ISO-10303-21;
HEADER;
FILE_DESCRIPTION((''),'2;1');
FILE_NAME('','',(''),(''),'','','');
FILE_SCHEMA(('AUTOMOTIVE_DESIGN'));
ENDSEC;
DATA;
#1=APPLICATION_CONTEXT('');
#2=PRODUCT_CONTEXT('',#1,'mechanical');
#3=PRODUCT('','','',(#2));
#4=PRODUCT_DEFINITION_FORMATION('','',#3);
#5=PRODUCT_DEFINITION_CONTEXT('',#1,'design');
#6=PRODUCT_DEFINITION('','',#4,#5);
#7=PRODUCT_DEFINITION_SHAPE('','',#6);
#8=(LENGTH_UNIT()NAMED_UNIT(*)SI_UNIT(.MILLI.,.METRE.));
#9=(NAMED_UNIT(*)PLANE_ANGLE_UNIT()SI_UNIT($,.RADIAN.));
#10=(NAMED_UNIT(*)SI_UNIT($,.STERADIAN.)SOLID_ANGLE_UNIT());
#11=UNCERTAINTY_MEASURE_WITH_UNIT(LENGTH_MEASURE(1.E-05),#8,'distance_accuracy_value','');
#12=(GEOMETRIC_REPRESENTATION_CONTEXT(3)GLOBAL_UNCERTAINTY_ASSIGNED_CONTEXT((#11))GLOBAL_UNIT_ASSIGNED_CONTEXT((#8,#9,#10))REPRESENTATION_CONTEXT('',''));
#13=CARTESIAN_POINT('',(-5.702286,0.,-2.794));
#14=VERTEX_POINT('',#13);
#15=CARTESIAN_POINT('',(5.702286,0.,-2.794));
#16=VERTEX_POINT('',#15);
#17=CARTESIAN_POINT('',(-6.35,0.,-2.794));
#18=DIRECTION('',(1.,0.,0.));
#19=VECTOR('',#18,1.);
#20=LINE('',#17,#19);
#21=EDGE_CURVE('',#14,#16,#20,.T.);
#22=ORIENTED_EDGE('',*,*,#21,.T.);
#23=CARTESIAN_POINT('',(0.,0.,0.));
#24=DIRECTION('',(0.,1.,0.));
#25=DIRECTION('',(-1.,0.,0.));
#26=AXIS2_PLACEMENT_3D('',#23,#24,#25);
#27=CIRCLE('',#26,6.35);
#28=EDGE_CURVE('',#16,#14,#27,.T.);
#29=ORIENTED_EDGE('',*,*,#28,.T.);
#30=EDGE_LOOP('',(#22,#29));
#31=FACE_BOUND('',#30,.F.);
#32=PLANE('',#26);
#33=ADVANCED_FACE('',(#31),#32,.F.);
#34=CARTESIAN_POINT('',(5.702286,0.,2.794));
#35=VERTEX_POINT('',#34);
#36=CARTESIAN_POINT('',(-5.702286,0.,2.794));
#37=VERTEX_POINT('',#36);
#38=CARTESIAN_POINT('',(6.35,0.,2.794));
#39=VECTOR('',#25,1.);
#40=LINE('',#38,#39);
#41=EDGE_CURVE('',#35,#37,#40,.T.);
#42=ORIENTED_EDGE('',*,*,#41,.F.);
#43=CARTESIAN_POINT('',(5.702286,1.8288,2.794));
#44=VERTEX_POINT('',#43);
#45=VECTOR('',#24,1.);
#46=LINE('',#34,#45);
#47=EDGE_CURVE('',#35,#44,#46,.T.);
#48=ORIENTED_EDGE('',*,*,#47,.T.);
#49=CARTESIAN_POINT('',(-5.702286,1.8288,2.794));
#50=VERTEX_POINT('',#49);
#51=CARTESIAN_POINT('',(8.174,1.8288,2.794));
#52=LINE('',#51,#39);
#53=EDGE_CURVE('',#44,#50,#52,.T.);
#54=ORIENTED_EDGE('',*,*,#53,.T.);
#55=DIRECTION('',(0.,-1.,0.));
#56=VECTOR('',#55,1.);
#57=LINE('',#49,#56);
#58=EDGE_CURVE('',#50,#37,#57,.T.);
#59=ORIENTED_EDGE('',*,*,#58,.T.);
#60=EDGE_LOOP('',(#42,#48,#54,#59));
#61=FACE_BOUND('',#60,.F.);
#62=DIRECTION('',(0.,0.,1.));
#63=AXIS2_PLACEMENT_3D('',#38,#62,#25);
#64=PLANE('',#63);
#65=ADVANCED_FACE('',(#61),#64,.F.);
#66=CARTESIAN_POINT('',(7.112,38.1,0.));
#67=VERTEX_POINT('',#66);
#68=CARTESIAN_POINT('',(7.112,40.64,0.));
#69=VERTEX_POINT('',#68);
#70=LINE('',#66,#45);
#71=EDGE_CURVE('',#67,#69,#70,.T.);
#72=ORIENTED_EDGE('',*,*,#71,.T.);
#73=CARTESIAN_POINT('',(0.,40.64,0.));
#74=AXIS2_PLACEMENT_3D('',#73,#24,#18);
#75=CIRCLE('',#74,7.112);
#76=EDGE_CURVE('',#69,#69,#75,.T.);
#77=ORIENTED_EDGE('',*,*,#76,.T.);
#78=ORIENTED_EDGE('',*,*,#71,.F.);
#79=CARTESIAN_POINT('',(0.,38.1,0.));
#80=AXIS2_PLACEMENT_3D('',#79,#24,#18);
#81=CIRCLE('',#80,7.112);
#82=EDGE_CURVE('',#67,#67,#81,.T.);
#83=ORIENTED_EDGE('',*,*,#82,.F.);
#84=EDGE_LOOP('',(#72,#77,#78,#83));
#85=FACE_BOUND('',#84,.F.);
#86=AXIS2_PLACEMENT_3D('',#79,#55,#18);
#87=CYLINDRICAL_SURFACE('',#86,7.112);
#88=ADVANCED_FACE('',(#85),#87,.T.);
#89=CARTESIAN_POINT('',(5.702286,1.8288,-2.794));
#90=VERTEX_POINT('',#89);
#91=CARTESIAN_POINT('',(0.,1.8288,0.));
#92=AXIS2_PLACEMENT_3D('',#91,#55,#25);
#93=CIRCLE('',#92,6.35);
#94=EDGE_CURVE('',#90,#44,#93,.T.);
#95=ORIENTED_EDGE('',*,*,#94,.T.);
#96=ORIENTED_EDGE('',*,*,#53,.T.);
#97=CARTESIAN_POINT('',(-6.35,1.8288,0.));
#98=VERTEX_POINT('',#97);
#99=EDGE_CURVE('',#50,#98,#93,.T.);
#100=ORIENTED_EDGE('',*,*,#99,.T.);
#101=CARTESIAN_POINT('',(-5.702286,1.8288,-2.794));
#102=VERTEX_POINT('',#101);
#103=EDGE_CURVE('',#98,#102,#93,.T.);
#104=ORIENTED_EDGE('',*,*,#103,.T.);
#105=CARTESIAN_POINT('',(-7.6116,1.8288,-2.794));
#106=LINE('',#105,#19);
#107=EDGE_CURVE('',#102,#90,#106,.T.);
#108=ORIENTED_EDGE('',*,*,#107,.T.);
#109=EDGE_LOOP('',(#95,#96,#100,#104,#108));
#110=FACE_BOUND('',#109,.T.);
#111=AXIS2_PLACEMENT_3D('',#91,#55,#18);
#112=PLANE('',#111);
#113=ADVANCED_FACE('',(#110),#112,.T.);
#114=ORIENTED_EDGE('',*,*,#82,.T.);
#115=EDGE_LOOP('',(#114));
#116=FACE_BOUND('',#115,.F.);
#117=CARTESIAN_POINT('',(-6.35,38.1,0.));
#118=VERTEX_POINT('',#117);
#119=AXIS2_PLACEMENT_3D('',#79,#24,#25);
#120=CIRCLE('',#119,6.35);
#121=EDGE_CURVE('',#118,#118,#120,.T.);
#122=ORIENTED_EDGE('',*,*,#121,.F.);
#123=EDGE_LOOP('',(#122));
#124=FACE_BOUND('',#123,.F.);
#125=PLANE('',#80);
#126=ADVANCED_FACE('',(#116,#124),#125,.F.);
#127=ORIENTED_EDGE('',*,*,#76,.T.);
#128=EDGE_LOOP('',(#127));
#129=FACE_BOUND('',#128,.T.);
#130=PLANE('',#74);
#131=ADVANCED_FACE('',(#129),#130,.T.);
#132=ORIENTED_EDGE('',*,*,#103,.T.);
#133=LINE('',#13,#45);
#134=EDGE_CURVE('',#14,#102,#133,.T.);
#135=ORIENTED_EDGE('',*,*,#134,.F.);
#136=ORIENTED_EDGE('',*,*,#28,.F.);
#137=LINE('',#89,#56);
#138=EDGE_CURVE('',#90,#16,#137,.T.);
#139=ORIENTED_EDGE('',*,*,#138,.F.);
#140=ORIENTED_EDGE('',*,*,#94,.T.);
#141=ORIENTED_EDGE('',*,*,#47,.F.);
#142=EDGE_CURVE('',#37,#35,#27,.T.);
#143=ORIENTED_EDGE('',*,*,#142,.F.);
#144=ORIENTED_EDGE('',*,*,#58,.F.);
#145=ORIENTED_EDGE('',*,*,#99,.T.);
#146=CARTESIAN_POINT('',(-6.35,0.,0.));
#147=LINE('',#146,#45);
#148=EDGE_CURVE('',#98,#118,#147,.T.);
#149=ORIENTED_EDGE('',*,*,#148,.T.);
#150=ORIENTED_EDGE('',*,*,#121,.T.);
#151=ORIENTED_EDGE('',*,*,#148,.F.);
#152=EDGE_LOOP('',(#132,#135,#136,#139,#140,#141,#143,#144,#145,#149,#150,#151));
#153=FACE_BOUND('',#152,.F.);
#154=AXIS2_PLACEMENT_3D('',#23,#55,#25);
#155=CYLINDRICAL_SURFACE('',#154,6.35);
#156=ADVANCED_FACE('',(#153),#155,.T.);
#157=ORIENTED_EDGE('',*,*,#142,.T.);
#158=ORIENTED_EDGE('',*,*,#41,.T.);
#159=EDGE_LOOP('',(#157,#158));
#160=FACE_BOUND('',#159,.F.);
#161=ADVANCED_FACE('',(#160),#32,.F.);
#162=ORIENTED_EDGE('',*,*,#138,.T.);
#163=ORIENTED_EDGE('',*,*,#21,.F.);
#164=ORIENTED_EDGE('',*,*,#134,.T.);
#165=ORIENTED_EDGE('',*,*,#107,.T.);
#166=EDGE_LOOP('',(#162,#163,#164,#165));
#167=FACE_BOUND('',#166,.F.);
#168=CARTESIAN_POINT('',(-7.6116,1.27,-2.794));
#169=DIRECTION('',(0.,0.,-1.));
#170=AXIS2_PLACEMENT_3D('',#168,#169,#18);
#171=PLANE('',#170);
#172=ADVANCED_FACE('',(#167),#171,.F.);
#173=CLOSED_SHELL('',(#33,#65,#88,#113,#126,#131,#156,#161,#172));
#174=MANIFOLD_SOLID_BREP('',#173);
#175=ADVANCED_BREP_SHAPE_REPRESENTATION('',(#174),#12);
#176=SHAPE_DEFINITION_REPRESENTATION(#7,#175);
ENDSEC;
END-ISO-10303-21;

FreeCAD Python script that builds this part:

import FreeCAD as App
import Part
import Sketcher
from FreeCAD import Vector
Q = App.Units.Quantity


def add_polygon(sketch, points):
    """Adds a closed chain of lines whose ends are joined by coincident constraints."""
    first, n = sketch.GeometryCount, len(points)
    for a, b in zip(points, points[1:] + points[:1]):
        sketch.addGeometry(Part.LineSegment(App.Vector(*a, 0), App.Vector(*b, 0)), False)
    for i in range(n):
        sketch.addConstraint(Sketcher.Constraint("Coincident", first + i, 2, first + (i + 1) % n, 1))

doc = App.newDocument("Part")
body = doc.addObject("PartDesign::Body", "Body")

# Sketch on XZ plane
sketch1 = doc.addObject("Sketcher::SketchObject", "Sketch")
body.addObject(sketch1)
sketch1.AttachmentSupport = (doc.XZ_Plane, [""])
sketch1.MapMode = "FlatFace"
sketch1.addGeometry(Part.Circle(Vector(0, 0, 0), Vector(0, 0, 1), 6), False)
sketch1.addConstraint([
    Sketcher.Constraint("Coincident", 0, 3, -1, 1),
    Sketcher.Constraint("Diameter", 0, Q("0.5 in")),
])
pad1 = doc.addObject("PartDesign::Pad", "Pad")
body.addObject(pad1)
pad1.Profile = sketch1
pad1.Length = Q("1.5 in")
pad1.Reversed = True

# Sketch on XZ plane
sketch2 = doc.addObject("Sketcher::SketchObject", "Sketch001")
body.addObject(sketch2)
sketch2.AttachmentSupport = (doc.XZ_Plane, [""])
sketch2.MapMode = "FlatFace"
sketch2.AttachmentOffset = App.Placement(Vector(0, 0, -1.5 * 25.4), App.Rotation())
sketch2.addGeometry(Part.Circle(Vector(0, 0, 0), Vector(0, 0, 1), 7), False)
sketch2.addConstraint([
    Sketcher.Constraint("Coincident", 0, 3, -1, 1),
    Sketcher.Constraint("Diameter", 0, Q("0.56 in")),
])
pad2 = doc.addObject("PartDesign::Pad", "Pad001")
body.addObject(pad2)
pad2.Profile = sketch2
pad2.Length = Q("0.1 in")
pad2.Reversed = True

# Sketch on XZ plane
sketch3 = doc.addObject("Sketcher::SketchObject", "Sketch002")
body.addObject(sketch3)
sketch3.AttachmentSupport = (doc.XZ_Plane, [""])
sketch3.MapMode = "FlatFace"
add_polygon(sketch3, [(-6, 3), (-6, -3), (6, -3), (6, 3)])  # lines 0-3
sketch3.addConstraint([
    Sketcher.Constraint("Vertical", 0),
    Sketcher.Constraint("Horizontal", 1),
    Sketcher.Constraint("Vertical", 2),
    Sketcher.Constraint("Horizontal", 3),
    Sketcher.Constraint("Symmetric", 0, 2, 2, 2, -1, 1),
    Sketcher.Constraint("DistanceY", 0, 2, 0, 1, Q("0.22 in")),
    Sketcher.Constraint("DistanceX", 1, 1, 1, 2, Q("0.5 in")),
])
pocket1 = doc.addObject("PartDesign::Pocket", "Pocket")
body.addObject(pocket1)
pocket1.Profile = sketch3
pocket1.Length = Q("0.05 in")

# Sketch on XZ plane
sketch4 = doc.addObject("Sketcher::SketchObject", "Sketch003")
body.addObject(sketch4)
sketch4.AttachmentSupport = (doc.XZ_Plane, [""])
sketch4.MapMode = "FlatFace"
sketch4.AttachmentOffset = App.Placement(Vector(0, 0, -0.05 * 25.4), App.Rotation())
add_polygon(sketch4, [(8, -3), (8, 3), (-8, 3), (-8, -3)])  # lines 0-3
sketch4.addConstraint([
    Sketcher.Constraint("Vertical", 0),
    Sketcher.Constraint("Horizontal", 1),
    Sketcher.Constraint("Vertical", 2),
    Sketcher.Constraint("Horizontal", 3),
    Sketcher.Constraint("DistanceY", 0, 1, 0, 2, Q("0.22 in")),
    Sketcher.Constraint("DistanceY", -1, 1, 0, 2, Q("0.11 in")),
    Sketcher.Constraint("DistanceX", 1, 2, 1, 1, 15.7856),
    Sketcher.Constraint("DistanceX", -1, 1, 0, 2, Q("0.3218 in")),
])
pocket2 = doc.addObject("PartDesign::Pocket", "Pocket001")
body.addObject(pocket2)
pocket2.Profile = sketch4
pocket2.Length = Q("0.022 in")

doc.recompute()
